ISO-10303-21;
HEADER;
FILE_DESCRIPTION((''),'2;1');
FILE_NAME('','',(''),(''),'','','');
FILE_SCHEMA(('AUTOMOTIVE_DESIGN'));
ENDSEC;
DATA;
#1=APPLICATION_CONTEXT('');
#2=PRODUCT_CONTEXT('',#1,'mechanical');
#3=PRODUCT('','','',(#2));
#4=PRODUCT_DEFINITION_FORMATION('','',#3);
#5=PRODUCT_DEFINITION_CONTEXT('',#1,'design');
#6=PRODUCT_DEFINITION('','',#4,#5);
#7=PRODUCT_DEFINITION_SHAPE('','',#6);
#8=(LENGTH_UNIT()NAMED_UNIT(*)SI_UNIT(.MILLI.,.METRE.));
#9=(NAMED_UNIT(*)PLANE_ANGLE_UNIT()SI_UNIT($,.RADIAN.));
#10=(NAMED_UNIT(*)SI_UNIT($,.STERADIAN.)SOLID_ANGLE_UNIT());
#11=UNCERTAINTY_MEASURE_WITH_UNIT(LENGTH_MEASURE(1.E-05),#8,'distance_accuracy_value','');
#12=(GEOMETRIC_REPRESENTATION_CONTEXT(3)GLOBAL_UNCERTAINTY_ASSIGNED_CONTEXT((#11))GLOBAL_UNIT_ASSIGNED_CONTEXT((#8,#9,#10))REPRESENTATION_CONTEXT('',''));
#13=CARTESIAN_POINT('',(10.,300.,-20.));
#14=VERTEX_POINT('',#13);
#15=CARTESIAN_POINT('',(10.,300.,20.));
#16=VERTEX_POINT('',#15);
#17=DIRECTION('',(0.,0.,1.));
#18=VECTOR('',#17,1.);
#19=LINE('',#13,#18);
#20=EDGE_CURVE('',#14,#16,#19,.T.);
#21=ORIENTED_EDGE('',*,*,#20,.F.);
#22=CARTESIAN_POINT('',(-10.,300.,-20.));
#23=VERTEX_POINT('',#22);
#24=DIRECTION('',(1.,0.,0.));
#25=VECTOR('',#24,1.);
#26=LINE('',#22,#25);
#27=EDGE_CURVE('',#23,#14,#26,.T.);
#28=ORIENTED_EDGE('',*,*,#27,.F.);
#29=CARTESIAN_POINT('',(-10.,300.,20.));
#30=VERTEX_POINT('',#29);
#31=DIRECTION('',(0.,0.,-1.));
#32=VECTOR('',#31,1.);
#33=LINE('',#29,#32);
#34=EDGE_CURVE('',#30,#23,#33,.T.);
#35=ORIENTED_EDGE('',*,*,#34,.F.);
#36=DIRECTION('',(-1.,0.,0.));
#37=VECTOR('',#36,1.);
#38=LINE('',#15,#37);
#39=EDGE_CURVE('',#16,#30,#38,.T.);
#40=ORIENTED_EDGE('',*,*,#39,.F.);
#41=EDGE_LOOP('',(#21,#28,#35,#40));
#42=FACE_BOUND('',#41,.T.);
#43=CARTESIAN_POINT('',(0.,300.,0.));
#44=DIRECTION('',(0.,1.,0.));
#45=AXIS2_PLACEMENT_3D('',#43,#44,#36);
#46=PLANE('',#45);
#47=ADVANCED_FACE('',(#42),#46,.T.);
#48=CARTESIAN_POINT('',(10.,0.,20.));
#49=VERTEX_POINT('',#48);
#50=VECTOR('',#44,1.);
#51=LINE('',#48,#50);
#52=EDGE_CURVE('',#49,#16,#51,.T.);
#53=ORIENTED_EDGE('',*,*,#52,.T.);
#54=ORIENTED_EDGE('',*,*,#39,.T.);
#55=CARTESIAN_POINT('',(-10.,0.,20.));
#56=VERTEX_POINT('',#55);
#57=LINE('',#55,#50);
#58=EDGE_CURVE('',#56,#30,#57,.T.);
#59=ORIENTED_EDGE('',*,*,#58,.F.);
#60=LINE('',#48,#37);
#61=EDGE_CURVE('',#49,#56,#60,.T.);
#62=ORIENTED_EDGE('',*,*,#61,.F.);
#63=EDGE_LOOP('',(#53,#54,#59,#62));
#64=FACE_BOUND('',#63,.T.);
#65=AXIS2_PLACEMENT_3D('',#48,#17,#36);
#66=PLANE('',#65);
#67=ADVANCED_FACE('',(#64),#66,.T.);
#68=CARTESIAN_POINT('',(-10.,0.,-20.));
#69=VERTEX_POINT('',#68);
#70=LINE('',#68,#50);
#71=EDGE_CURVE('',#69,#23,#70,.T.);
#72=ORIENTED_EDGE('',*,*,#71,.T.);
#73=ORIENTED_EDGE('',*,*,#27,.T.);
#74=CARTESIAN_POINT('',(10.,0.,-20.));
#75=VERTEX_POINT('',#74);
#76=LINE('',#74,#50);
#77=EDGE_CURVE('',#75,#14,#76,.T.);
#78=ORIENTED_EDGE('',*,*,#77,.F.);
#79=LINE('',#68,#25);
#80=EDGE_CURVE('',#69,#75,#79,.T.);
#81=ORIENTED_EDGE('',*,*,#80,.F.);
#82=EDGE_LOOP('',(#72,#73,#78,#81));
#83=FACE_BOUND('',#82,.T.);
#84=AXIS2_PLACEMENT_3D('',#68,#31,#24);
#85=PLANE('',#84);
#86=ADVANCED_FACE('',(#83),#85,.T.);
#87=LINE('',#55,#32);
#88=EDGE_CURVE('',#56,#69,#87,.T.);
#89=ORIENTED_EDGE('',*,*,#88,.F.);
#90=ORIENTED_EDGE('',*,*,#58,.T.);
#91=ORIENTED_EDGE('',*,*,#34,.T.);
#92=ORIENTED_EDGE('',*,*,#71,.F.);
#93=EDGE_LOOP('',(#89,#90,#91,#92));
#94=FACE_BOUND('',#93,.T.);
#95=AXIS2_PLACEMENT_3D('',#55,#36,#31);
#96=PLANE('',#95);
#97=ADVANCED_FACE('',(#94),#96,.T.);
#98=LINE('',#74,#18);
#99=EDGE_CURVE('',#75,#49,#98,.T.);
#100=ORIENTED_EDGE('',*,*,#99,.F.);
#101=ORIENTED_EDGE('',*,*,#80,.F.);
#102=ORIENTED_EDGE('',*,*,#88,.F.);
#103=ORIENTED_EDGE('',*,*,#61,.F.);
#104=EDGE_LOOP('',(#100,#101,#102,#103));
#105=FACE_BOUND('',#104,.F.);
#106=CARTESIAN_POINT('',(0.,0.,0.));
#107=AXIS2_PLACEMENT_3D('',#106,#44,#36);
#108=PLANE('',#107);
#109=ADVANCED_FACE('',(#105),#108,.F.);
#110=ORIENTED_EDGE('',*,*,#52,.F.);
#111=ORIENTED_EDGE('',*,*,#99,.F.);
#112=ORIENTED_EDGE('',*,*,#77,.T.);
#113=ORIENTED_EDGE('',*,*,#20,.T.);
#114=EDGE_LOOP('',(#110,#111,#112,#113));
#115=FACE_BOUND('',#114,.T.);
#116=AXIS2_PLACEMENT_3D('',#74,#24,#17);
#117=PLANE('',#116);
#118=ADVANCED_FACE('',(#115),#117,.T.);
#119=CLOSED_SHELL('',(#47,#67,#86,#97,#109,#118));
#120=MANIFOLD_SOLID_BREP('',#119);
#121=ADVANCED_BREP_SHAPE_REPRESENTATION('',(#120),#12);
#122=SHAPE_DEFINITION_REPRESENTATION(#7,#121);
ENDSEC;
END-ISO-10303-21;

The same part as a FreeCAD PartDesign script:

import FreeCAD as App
import Part
import Sketcher
from FreeCAD import Vector


def add_polygon(sketch, points):
    """Adds a closed chain of lines whose ends are joined by coincident constraints."""
    first, n = sketch.GeometryCount, len(points)
    for a, b in zip(points, points[1:] + points[:1]):
        sketch.addGeometry(Part.LineSegment(App.Vector(*a, 0), App.Vector(*b, 0)), False)
    for i in range(n):
        sketch.addConstraint(Sketcher.Constraint("Coincident", first + i, 2, first + (i + 1) % n, 1))

doc = App.newDocument("Part")
body = doc.addObject("PartDesign::Body", "Body")

# Sketch on XZ plane
sketch1 = doc.addObject("Sketcher::SketchObject", "Sketch")
body.addObject(sketch1)
sketch1.AttachmentSupport = (doc.XZ_Plane, [""])
sketch1.MapMode = "FlatFace"
add_polygon(sketch1, [(-10, 20), (10, 20), (10, -20), (-10, -20)])  # lines 0-3
sketch1.addConstraint([
    Sketcher.Constraint("Horizontal", 0),
    Sketcher.Constraint("Vertical", 1),
    Sketcher.Constraint("Horizontal", 2),
    Sketcher.Constraint("Vertical", 3),
    Sketcher.Constraint("Symmetric", 0, 2, 2, 2, -1, 1),
    Sketcher.Constraint("DistanceX", 0, 1, 0, 2, 20.0),
    Sketcher.Constraint("DistanceY", 1, 2, 1, 1, 40.0),
])
pad1 = doc.addObject("PartDesign::Pad", "Pad")
body.addObject(pad1)
pad1.Profile = sketch1
pad1.Length = 300
pad1.Reversed = True

doc.recompute()
